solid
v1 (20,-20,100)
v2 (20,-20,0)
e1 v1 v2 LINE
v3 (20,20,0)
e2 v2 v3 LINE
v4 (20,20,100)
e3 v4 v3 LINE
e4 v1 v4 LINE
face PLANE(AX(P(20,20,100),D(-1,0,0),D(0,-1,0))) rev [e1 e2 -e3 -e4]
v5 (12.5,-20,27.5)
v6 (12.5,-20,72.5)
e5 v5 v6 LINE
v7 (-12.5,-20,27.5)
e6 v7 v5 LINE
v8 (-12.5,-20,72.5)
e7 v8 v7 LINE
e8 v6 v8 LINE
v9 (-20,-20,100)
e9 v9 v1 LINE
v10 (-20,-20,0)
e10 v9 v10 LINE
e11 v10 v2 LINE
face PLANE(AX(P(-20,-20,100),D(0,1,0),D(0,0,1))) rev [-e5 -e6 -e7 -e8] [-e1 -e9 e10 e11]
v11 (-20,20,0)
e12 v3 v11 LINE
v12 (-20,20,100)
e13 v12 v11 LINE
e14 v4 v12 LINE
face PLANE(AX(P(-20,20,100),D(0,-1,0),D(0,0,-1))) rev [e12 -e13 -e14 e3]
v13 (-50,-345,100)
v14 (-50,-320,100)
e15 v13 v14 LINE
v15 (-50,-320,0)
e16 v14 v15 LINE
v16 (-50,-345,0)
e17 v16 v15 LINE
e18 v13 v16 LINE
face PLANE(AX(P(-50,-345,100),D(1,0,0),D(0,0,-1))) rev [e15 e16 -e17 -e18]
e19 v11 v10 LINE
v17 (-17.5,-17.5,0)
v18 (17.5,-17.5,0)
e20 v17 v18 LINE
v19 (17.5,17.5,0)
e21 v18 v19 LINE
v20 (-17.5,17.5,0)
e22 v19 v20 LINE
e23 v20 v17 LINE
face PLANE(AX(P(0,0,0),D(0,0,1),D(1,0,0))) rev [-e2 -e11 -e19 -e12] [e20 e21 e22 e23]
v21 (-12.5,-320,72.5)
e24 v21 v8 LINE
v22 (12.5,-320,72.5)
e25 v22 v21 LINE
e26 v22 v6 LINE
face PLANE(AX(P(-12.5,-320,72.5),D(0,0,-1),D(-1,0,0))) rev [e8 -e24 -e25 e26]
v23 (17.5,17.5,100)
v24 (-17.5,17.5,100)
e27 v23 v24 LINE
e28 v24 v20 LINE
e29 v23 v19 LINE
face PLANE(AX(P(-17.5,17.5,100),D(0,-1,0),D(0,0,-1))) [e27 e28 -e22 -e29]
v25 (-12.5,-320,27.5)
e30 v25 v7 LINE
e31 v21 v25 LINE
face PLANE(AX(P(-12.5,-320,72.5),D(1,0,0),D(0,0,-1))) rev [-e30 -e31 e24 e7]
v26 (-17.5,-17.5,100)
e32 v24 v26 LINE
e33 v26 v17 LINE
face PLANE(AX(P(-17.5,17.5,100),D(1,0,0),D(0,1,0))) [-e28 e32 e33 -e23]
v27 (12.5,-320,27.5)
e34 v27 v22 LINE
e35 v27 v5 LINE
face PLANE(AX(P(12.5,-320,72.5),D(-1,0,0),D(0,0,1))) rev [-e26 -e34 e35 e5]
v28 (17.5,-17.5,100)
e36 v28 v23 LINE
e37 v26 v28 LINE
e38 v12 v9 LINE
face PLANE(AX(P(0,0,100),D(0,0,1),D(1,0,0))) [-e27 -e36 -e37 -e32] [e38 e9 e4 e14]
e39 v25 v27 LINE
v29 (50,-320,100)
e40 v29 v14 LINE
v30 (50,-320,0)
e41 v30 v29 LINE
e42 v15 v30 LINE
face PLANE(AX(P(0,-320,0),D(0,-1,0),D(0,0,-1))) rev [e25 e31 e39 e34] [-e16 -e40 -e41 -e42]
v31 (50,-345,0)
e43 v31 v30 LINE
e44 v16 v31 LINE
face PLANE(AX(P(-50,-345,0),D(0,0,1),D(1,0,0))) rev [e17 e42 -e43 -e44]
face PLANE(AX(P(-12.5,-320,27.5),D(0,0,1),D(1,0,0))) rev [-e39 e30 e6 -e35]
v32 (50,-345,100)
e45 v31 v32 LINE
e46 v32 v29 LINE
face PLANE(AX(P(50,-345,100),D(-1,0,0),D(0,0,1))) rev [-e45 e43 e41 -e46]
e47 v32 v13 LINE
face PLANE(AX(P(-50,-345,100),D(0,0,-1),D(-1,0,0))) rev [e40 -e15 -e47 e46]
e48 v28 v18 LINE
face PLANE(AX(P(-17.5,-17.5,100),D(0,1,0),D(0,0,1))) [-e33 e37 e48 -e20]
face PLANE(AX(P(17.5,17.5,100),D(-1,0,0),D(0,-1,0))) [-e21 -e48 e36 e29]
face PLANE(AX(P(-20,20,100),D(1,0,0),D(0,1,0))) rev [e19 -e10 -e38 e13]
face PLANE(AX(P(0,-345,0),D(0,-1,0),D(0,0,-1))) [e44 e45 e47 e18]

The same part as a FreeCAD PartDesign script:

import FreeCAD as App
import Part
import Sketcher
from FreeCAD import Vector

doc = App.newDocument("Part")
params = doc.addObject("Spreadsheet::Sheet", "Params")
for row, (alias, value) in enumerate([
    ("sketch1_width", "40 mm"),
    ("sketch1_width2", "35 mm"),
    ("pad1_length", "100 mm"),
    ("sketch2_width", "25 mm"),
    ("sketch2_height", "45 mm"),
    ("pad2_length", "300 mm"),
    ("sketch3_width", "100 mm"),
    ("pad3_length", "25 mm"),
], start=1):
    params.set(f"A{row}", alias)
    params.set(f"B{row}", "=" + value)
    params.setAlias(f"B{row}", alias)

body = doc.addObject("PartDesign::Body", "Body")

sketch1 = body.newObject("Sketcher::SketchObject", "Sketch")
sketch1.AttachmentSupport = (doc.getObject("XY_Plane"), [""])
sketch1.MapMode = "FlatFace"
sketch1.addGeometry(Part.LineSegment(Vector(-20, 20, 0), Vector(-20, -20, 0)), False)
sketch1.addGeometry(Part.LineSegment(Vector(-20, -20, 0), Vector(20, -20, 0)), False)
sketch1.addGeometry(Part.LineSegment(Vector(20, -20, 0), Vector(20, 20, 0)), False)
sketch1.addGeometry(Part.LineSegment(Vector(20, 20, 0), Vector(-20, 20, 0)), False)
sketch1.addGeometry(Part.LineSegment(Vector(17.5, -17.5, 0), Vector(-17.5, -17.5, 0)), False)
sketch1.addGeometry(Part.LineSegment(Vector(-17.5, -17.5, 0), Vector(-17.5, 17.5, 0)), False)
sketch1.addGeometry(Part.LineSegment(Vector(-17.5, 17.5, 0), Vector(17.5, 17.5, 0)), False)
sketch1.addGeometry(Part.LineSegment(Vector(17.5, 17.5, 0), Vector(17.5, -17.5, 0)), False)
sketch1.addConstraint(Sketcher.Constraint("Coincident", 0, 2, 1, 1))
sketch1.addConstraint(Sketcher.Constraint("Coincident", 1, 2, 2, 1))
sketch1.addConstraint(Sketcher.Constraint("Coincident", 2, 2, 3, 1))
sketch1.addConstraint(Sketcher.Constraint("Coincident", 3, 2, 0, 1))
sketch1.addConstraint(Sketcher.Constraint("Coincident", 4, 2, 5, 1))
sketch1.addConstraint(Sketcher.Constraint("Coincident", 5, 2, 6, 1))
sketch1.addConstraint(Sketcher.Constraint("Coincident", 6, 2, 7, 1))
sketch1.addConstraint(Sketcher.Constraint("Coincident", 7, 2, 4, 1))
sketch1.addConstraint(Sketcher.Constraint("Vertical", 0))
sketch1.addConstraint(Sketcher.Constraint("Horizontal", 1))
sketch1.addConstraint(Sketcher.Constraint("Vertical", 2))
sketch1.addConstraint(Sketcher.Constraint("Horizontal", 3))
sketch1.addConstraint(Sketcher.Constraint("Horizontal", 4))
sketch1.addConstraint(Sketcher.Constraint("Vertical", 5))
sketch1.addConstraint(Sketcher.Constraint("Horizontal", 6))
sketch1.addConstraint(Sketcher.Constraint("Vertical", 7))
sketch1.addConstraint(Sketcher.Constraint("Symmetric", 0, 2, 2, 2, -1, 1))
sketch1.addConstraint(Sketcher.Constraint("Symmetric", 4, 2, 6, 2, -1, 1))
sketch1.addConstraint(Sketcher.Constraint("Equal", 3, 0))
sketch1.addConstraint(Sketcher.Constraint("Equal", 6, 5))
sketch1.addConstraint(Sketcher.Constraint("DistanceX", 1, 1, 1, 2, 40.0))
sketch1.addConstraint(Sketcher.Constraint("DistanceX", 4, 2, 4, 1, 35.0))
sketch1.setExpression("Constraints[20]", "Params.sketch1_width")
sketch1.setExpression("Constraints[21]", "Params.sketch1_width2")
pad1 = body.newObject("PartDesign::Pad", "Pad")
pad1.Profile = sketch1
pad1.setExpression("Length", "Params.pad1_length")

sketch2 = body.newObject("Sketcher::SketchObject", "Sketch001")
sketch2.AttachmentSupport = (doc.getObject("XZ_Plane"), [""])
sketch2.MapMode = "FlatFace"
sketch2.AttachmentOffset = App.Placement(Vector(0, 0, 20), App.Rotation())
sketch2.addGeometry(Part.LineSegment(Vector(-12.5, 72.5, 0), Vector(-12.5, 27.5, 0)), False)
sketch2.addGeometry(Part.LineSegment(Vector(-12.5, 27.5, 0), Vector(12.5, 27.5, 0)), False)
sketch2.addGeometry(Part.LineSegment(Vector(12.5, 27.5, 0), Vector(12.5, 72.5, 0)), False)
sketch2.addGeometry(Part.LineSegment(Vector(12.5, 72.5, 0), Vector(-12.5, 72.5, 0)), False)
sketch2.addConstraint(Sketcher.Constraint("Coincident", 0, 2, 1, 1))
sketch2.addConstraint(Sketcher.Constraint("Coincident", 1, 2, 2, 1))
sketch2.addConstraint(Sketcher.Constraint("Coincident", 2, 2, 3, 1))
sketch2.addConstraint(Sketcher.Constraint("Coincident", 3, 2, 0, 1))
sketch2.addConstraint(Sketcher.Constraint("Vertical", 0))
sketch2.addConstraint(Sketcher.Constraint("Horizontal", 1))
sketch2.addConstraint(Sketcher.Constraint("Vertical", 2))
sketch2.addConstraint(Sketcher.Constraint("Horizontal", 3))
sketch2.addConstraint(Sketcher.Constraint("DistanceX", 1, 1, 1, 2, 25.0))
sketch2.addConstraint(Sketcher.Constraint("DistanceY", 0, 2, 0, 1, 45.0))
sketch2.addConstraint(Sketcher.Constraint("DistanceX", 0, 2, -1, 1, 12.5))
sketch2.addConstraint(Sketcher.Constraint("DistanceY", -1, 1, 0, 2, 27.5))
sketch2.setExpression("Constraints[8]", "Params.sketch2_width")
sketch2.setExpression("Constraints[9]", "Params.sketch2_height")
pad2 = body.newObject("PartDesign::Pad", "Pad001")
pad2.Profile = sketch2
pad2.setExpression("Length", "Params.pad2_length")

sketch3 = body.newObject("Sketcher::SketchObject", "Sketch002")
sketch3.AttachmentSupport = (doc.getObject("XZ_Plane"), [""])
sketch3.MapMode = "FlatFace"
sketch3.AttachmentOffset = App.Placement(Vector(0, 0, 320), App.Rotation())
sketch3.addGeometry(Part.LineSegment(Vector(-50, 100, 0), Vector(-50, 0, 0)), False)
sketch3.addGeometry(Part.LineSegment(Vector(-50, 0, 0), Vector(50, 0, 0)), False)
sketch3.addGeometry(Part.LineSegment(Vector(50, 0, 0), Vector(50, 100, 0)), False)
sketch3.addGeometry(Part.LineSegment(Vector(50, 100, 0), Vector(-50, 100, 0)), False)
sketch3.addConstraint(Sketcher.Constraint("Coincident", 0, 2, 1, 1))
sketch3.addConstraint(Sketcher.Constraint("Coincident", 1, 2, 2, 1))
sketch3.addConstraint(Sketcher.Constraint("Coincident", 2, 2, 3, 1))
sketch3.addConstraint(Sketcher.Constraint("Coincident", 3, 2, 0, 1))
sketch3.addConstraint(Sketcher.Constraint("Vertical", 0))
sketch3.addConstraint(Sketcher.Constraint("Horizontal", 1))
sketch3.addConstraint(Sketcher.Constraint("Vertical", 2))
sketch3.addConstraint(Sketcher.Constraint("Horizontal", 3))
sketch3.addConstraint(Sketcher.Constraint("Symmetric", 0, 2, 1, 2, -1, 1))
sketch3.addConstraint(Sketcher.Constraint("Equal", 3, 0))
sketch3.addConstraint(Sketcher.Constraint("DistanceX", 1, 1, 1, 2, 100.0))
sketch3.setExpression("Constraints[10]", "Params.sketch3_width")
pad3 = body.newObject("PartDesign::Pad", "Pad002")
pad3.Profile = sketch3
pad3.setExpression("Length", "Params.pad3_length")

doc.recompute()
